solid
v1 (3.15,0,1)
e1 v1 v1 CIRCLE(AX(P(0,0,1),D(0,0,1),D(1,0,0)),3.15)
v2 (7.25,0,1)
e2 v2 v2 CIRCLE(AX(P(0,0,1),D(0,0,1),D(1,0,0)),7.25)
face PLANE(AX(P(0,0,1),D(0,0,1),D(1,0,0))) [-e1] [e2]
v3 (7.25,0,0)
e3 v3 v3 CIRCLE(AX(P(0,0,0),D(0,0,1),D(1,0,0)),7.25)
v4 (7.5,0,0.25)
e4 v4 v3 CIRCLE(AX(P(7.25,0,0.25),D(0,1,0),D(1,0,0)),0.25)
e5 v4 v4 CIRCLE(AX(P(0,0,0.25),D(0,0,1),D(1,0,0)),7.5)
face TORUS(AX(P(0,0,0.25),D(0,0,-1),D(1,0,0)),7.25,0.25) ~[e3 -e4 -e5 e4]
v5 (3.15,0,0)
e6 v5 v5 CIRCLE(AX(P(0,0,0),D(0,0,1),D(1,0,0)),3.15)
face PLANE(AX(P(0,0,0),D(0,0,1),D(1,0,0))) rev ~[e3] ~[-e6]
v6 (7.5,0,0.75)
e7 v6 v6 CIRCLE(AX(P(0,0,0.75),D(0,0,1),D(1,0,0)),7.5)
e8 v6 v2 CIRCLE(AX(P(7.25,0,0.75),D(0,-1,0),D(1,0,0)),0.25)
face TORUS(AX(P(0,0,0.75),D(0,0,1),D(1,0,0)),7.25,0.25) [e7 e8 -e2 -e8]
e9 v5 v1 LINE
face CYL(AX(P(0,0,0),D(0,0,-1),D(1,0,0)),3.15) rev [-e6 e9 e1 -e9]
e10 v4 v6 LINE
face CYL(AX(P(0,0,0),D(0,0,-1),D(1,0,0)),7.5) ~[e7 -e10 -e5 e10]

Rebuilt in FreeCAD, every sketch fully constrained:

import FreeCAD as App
import Part
import Sketcher
from FreeCAD import Vector


def edges_at(feature, points):
    """Names of the edges that pass closest to the given points."""
    edges = feature.Shape.Edges
    near = lambda p: min(range(len(edges)), key=lambda i: edges[i].distToShape(Part.Vertex(*p))[0])
    return sorted({f"Edge{near(p) + 1}" for p in points})

doc = App.newDocument("Part")
body = doc.addObject("PartDesign::Body", "Body")

sketch1 = doc.addObject("Sketcher::SketchObject", "Sketch")
body.addObject(sketch1)
sketch1.AttachmentSupport = (doc.XY_Plane, [""])
sketch1.MapMode = "FlatFace"
sketch1.addGeometry([
    Part.Circle(Vector(0, 0, 0), Vector(0, 0, 1), 7.5),
    Part.Circle(Vector(0, 0, 0), Vector(0, 0, 1), 3.15),
], False)
sketch1.addConstraint([
    Sketcher.Constraint("Coincident", 0, 3, -1, 1),
    Sketcher.Constraint("Coincident", 1, 3, -1, 1),
    Sketcher.Constraint("Diameter", 0, 15.0),
    Sketcher.Constraint("Diameter", 1, 6.3),
])
pad1 = doc.addObject("PartDesign::Pad", "Pad")
body.addObject(pad1)
pad1.Profile = sketch1
pad1.Length = 1
doc.recompute()

fillet = doc.addObject("PartDesign::Fillet", "Fillet")
body.addObject(fillet)
fillet.Base = (pad1, edges_at(pad1, [(-7.5, 0, 1), (-7.5, 0, 0)]))
fillet.Radius = 0.25

doc.recompute()
